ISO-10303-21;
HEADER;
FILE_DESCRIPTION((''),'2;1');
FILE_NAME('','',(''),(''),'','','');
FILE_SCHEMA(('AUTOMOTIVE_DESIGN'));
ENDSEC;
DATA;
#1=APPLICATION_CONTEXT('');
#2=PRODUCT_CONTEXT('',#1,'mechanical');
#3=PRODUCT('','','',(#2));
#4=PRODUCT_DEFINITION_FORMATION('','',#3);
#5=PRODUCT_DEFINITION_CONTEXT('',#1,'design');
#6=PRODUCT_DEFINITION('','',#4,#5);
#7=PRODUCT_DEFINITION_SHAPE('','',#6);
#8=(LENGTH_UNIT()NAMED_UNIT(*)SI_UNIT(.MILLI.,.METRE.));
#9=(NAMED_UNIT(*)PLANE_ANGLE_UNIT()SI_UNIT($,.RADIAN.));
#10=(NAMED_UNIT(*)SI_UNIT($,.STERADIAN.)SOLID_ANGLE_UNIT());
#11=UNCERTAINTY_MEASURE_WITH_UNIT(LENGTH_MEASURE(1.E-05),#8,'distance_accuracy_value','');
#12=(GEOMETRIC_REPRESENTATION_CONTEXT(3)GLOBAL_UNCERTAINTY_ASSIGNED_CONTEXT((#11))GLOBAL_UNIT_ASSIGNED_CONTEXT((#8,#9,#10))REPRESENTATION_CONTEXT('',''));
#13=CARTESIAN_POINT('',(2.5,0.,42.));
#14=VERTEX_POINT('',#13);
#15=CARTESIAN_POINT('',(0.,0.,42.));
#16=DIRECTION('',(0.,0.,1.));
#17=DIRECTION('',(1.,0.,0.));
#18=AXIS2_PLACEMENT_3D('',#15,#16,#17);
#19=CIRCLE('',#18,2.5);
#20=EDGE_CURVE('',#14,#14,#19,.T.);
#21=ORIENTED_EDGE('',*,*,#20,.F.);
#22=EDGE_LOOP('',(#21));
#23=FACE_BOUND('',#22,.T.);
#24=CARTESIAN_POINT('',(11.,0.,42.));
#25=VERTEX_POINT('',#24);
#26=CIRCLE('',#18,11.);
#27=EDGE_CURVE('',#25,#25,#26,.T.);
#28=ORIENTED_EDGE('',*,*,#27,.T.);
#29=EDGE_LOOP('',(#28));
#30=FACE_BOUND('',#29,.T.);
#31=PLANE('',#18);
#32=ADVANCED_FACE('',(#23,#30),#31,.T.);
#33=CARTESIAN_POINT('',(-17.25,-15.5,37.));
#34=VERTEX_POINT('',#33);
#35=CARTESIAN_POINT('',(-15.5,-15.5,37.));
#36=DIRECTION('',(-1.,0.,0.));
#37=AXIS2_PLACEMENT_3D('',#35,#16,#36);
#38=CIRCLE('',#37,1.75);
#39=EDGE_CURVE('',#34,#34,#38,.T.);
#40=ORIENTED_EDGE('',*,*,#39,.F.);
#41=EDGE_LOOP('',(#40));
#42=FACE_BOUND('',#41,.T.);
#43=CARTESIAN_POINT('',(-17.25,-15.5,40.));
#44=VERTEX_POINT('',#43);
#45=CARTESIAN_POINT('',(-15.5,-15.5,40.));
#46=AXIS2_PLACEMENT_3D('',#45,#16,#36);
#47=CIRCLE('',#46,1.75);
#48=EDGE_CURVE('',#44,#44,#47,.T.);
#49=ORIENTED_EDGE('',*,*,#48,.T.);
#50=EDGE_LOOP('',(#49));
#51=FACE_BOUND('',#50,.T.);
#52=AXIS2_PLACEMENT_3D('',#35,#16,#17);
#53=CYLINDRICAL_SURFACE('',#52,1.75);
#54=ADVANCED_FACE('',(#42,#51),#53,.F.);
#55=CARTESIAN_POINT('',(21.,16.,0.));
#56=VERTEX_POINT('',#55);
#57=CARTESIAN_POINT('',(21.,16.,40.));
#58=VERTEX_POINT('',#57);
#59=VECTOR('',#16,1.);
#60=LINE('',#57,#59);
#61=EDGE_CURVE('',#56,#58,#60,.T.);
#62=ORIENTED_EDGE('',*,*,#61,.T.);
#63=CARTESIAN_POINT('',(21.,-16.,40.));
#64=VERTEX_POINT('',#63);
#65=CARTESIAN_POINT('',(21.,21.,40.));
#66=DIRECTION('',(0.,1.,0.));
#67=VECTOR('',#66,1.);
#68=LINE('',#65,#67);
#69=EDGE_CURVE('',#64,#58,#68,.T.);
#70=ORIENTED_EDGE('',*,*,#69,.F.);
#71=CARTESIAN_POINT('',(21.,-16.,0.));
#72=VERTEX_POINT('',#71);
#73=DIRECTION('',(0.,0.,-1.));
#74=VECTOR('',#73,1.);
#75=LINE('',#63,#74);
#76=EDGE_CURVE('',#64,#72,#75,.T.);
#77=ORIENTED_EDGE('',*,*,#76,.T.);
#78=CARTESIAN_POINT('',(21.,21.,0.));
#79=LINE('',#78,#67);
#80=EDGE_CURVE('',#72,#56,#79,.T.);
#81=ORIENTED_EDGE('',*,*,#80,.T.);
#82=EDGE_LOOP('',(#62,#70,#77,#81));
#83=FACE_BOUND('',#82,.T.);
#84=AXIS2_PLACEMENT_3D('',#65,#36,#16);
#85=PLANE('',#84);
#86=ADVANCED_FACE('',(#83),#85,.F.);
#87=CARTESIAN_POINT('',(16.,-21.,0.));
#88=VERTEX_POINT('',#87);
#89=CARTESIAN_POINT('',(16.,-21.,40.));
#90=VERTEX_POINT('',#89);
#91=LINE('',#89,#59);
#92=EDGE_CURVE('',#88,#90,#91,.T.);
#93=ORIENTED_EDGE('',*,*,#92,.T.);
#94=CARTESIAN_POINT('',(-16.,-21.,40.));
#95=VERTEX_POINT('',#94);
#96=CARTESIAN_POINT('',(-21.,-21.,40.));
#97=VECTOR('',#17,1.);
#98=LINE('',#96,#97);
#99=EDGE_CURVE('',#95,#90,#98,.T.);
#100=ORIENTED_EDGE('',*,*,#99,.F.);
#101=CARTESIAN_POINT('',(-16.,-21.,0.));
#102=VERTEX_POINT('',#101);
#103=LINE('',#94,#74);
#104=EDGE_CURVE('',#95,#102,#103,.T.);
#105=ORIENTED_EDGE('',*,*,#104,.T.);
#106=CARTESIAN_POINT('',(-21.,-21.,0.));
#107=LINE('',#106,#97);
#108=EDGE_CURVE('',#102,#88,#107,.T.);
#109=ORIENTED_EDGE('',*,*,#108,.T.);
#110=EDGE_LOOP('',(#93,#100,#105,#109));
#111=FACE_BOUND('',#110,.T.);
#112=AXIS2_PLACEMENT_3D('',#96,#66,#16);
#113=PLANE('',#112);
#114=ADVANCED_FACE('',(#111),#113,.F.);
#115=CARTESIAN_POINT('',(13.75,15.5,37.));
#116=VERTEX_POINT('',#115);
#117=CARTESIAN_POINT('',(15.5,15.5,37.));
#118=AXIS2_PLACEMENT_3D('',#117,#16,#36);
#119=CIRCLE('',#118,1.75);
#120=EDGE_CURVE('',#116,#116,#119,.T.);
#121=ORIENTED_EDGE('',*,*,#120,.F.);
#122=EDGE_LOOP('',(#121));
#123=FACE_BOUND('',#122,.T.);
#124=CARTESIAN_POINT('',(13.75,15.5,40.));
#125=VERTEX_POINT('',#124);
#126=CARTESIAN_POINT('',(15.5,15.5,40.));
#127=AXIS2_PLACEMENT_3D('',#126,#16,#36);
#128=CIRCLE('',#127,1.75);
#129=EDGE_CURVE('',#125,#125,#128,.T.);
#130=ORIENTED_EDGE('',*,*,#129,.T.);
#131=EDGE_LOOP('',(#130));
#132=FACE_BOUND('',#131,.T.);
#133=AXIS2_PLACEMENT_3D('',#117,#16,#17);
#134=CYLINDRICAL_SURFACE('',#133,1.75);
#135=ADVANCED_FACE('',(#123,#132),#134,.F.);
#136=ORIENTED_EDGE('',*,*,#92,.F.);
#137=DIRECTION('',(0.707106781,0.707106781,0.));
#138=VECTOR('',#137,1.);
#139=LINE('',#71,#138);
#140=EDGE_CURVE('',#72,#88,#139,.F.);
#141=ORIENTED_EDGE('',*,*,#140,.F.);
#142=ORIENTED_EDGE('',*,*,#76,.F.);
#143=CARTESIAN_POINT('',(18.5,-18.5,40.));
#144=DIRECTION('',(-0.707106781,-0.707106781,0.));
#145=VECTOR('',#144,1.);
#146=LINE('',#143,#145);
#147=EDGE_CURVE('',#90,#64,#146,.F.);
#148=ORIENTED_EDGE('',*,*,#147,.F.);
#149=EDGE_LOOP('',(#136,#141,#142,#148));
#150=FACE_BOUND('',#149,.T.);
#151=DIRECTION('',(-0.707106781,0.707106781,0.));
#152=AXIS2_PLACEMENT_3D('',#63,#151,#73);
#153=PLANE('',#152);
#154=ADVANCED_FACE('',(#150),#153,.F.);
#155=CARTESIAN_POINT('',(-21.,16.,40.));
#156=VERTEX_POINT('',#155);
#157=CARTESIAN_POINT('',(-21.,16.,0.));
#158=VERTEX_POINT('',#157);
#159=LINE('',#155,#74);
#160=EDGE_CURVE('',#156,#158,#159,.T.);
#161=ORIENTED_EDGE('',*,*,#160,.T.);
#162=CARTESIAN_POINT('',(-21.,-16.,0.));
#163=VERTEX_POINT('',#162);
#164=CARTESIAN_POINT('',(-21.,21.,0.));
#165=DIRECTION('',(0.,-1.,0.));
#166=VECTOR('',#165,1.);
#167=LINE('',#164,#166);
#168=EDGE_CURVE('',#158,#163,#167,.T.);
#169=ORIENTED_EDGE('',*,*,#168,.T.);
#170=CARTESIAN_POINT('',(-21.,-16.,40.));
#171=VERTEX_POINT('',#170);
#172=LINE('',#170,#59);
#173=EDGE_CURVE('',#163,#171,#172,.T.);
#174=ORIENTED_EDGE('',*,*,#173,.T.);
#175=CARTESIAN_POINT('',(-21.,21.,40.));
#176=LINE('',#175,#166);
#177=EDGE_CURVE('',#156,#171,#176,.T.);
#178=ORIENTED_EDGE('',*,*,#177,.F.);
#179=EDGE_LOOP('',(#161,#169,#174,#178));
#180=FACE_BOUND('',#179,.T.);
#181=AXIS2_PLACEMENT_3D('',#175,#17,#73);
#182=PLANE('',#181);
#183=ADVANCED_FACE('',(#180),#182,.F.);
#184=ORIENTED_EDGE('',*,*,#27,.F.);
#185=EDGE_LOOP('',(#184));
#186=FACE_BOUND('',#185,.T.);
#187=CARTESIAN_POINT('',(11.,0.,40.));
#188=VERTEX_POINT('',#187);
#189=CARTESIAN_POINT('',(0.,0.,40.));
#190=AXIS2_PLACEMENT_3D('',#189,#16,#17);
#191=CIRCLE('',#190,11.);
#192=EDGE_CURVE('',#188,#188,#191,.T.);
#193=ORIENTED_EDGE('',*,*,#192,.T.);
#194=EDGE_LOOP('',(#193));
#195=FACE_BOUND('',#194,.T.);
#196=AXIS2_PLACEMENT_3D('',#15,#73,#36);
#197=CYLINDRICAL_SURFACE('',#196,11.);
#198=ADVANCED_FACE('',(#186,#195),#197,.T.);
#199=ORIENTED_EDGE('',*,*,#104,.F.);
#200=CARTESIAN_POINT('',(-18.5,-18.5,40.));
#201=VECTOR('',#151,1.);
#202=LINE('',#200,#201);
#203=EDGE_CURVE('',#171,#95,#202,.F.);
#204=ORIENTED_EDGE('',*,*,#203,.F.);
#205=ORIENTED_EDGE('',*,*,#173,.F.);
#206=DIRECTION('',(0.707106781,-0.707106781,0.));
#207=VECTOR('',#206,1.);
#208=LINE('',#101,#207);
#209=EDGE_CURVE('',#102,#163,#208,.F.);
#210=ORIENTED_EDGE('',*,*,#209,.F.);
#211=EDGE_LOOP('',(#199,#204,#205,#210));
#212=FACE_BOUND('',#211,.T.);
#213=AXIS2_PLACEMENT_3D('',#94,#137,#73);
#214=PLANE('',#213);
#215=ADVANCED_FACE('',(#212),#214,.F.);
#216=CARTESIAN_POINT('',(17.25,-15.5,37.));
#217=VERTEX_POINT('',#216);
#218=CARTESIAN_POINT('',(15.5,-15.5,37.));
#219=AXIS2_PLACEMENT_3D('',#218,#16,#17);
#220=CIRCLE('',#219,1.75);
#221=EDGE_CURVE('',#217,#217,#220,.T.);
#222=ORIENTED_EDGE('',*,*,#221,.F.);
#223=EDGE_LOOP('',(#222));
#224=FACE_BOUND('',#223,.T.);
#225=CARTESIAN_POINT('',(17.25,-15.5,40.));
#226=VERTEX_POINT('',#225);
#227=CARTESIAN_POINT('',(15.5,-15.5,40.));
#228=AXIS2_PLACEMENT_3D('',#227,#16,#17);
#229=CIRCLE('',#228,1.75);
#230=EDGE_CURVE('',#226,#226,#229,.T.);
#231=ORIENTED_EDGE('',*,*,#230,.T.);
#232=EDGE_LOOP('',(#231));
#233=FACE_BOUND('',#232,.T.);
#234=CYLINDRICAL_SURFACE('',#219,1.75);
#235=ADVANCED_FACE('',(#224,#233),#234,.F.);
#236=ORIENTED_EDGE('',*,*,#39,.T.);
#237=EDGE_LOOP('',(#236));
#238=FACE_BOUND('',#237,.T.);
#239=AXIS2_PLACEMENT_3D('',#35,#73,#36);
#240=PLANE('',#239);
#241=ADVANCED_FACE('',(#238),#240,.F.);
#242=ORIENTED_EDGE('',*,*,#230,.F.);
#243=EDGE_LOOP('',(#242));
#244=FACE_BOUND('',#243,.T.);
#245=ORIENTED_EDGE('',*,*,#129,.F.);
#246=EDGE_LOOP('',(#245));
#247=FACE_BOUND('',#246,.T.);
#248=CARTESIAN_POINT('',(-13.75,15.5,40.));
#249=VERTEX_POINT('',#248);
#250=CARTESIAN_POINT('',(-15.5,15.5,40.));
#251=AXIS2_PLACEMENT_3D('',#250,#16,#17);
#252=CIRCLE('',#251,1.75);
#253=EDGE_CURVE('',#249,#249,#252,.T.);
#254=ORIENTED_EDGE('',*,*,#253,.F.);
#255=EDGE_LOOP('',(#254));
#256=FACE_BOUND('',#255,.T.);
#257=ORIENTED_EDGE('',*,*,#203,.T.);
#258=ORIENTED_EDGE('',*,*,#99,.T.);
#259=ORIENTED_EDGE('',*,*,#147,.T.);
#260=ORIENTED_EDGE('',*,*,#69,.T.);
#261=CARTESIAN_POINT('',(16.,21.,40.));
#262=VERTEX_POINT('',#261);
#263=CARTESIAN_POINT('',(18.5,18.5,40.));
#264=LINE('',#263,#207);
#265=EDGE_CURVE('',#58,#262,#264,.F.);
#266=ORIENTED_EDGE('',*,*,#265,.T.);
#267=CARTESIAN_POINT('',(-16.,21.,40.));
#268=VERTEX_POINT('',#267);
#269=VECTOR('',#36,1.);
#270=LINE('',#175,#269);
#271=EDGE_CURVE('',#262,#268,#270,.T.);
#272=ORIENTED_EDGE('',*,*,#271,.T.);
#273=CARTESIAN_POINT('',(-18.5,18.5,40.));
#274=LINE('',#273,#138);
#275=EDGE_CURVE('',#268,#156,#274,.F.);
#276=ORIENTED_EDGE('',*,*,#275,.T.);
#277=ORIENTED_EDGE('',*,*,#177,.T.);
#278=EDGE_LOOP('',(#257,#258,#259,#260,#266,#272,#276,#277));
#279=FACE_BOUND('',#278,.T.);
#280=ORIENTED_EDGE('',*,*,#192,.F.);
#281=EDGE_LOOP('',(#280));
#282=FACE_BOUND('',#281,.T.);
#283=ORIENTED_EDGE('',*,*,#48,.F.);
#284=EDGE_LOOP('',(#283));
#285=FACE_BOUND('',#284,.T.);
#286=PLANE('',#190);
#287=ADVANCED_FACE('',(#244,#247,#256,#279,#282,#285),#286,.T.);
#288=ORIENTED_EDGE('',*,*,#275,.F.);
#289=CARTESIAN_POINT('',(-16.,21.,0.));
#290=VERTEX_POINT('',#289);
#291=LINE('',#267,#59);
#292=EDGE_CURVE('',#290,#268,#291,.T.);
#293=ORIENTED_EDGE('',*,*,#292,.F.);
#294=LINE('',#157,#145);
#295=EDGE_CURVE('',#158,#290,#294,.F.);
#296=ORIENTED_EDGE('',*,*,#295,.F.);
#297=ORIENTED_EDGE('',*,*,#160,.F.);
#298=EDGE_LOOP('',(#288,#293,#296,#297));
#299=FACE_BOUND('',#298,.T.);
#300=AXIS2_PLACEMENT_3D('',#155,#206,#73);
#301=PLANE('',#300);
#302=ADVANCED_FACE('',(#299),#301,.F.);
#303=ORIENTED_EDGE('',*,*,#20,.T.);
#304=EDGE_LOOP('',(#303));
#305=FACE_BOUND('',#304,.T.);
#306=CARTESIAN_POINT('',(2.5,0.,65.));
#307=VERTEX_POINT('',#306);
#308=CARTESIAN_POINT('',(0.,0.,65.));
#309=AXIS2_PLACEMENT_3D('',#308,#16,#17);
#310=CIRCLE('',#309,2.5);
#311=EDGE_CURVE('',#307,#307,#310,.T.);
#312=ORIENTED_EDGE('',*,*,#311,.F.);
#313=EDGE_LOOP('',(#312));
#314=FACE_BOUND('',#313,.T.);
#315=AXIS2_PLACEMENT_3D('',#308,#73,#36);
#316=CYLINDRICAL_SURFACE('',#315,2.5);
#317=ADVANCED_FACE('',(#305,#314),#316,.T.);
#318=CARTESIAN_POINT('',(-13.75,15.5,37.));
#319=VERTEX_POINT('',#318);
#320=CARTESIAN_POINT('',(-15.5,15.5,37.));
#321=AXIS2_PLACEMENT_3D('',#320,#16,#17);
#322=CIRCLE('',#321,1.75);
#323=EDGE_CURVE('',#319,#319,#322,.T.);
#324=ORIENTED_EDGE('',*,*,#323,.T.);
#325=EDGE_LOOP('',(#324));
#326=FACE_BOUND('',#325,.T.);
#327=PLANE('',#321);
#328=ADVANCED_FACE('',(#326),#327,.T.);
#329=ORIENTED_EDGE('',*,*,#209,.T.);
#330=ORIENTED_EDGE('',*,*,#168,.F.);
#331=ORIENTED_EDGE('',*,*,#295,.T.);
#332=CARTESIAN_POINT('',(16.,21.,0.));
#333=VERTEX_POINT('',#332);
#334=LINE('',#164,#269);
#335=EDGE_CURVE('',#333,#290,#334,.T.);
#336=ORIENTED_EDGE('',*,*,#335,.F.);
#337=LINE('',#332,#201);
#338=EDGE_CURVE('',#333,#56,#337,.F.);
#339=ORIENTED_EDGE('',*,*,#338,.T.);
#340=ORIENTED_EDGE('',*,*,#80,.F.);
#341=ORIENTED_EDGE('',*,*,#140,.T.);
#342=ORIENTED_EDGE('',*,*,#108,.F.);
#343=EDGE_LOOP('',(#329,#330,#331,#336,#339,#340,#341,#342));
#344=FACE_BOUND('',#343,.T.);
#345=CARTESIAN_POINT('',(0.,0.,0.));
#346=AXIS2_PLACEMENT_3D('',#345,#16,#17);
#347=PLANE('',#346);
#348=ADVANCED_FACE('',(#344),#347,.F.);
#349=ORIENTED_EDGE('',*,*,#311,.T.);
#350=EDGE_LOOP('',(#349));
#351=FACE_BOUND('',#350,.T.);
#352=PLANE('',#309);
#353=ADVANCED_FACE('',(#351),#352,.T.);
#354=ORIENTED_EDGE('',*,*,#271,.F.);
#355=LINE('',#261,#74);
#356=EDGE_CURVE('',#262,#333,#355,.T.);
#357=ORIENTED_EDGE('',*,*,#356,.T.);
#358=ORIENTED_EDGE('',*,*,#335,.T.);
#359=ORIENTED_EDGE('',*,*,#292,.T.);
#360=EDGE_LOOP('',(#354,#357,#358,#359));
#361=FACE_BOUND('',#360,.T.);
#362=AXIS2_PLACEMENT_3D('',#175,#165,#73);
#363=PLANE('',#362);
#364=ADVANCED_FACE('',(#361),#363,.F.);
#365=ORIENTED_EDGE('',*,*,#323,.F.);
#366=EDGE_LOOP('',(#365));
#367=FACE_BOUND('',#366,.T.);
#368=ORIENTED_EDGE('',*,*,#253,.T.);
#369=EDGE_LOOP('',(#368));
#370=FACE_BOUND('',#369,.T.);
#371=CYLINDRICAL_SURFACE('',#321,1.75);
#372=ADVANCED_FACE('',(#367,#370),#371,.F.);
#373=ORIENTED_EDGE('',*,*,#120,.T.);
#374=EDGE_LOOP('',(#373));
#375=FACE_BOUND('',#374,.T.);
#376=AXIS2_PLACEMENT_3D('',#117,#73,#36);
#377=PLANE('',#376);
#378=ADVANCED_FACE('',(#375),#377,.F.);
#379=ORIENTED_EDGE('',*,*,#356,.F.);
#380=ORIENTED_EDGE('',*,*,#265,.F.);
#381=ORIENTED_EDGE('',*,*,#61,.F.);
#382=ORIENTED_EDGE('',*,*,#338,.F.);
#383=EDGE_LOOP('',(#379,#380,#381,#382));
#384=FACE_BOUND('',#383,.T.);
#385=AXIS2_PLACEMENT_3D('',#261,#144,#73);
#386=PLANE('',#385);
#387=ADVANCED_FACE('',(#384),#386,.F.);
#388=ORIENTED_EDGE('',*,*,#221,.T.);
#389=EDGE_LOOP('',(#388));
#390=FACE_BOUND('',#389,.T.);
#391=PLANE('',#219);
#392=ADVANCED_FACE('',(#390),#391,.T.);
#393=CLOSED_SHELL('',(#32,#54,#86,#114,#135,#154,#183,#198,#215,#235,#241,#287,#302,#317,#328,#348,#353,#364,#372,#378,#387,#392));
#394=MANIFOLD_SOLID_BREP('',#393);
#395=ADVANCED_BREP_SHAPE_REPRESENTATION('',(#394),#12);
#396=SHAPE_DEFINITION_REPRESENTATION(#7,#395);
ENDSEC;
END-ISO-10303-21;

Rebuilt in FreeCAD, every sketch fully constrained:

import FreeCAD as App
import Part
import Sketcher
from FreeCAD import Vector


def edges_at(feature, points):
    """Names of the edges that pass closest to the given points."""
    edges = feature.Shape.Edges
    near = lambda p: min(range(len(edges)), key=lambda i: edges[i].distToShape(Part.Vertex(*p))[0])
    return sorted({f"Edge{near(p) + 1}" for p in points})


def add_polygon(sketch, points):
    """Adds a closed chain of lines whose ends are joined by coincident constraints."""
    first, n = sketch.GeometryCount, len(points)
    for a, b in zip(points, points[1:] + points[:1]):
        sketch.addGeometry(Part.LineSegment(App.Vector(*a, 0), App.Vector(*b, 0)), False)
    for i in range(n):
        sketch.addConstraint(Sketcher.Constraint("Coincident", first + i, 2, first + (i + 1) % n, 1))

doc = App.newDocument("Part")
params = doc.addObject("Spreadsheet::Sheet", "Params")
for row, (alias, value) in enumerate([
    ("sketch1_width", "42 mm"),
    ("pad1_length", "40 mm"),
    ("chamfer_size", "5 mm"),
    ("sketch2_diameter", "22 mm"),
    ("pad2_length", "2 mm"),
    ("sketch3_diameter", "5 mm"),
    ("pad3_length", "23 mm"),
    ("sketch4_diameter", "3.5 mm"),
    ("pocket1_length", "3 mm"),
], start=1):
    params.set(f"A{row}", alias)
    params.set(f"B{row}", "=" + value)
    params.setAlias(f"B{row}", alias)

body = doc.addObject("PartDesign::Body", "Body")

# Sketch on XY plane
sketch1 = doc.addObject("Sketcher::SketchObject", "Sketch")
body.addObject(sketch1)
sketch1.AttachmentSupport = (doc.XY_Plane, [""])
sketch1.MapMode = "FlatFace"
add_polygon(sketch1, [(-21, 21), (-21, -21), (21, -21), (21, 21)])  # lines 0-3
sketch1.addConstraint(Sketcher.Constraint("Vertical", 0))
sketch1.addConstraint(Sketcher.Constraint("Horizontal", 1))
sketch1.addConstraint(Sketcher.Constraint("Vertical", 2))
sketch1.addConstraint(Sketcher.Constraint("Horizontal", 3))
sketch1.addConstraint(Sketcher.Constraint("Symmetric", 0, 2, 2, 2, -1, 1))
sketch1.addConstraint(Sketcher.Constraint("Equal", 3, 0))
sketch1.addConstraint(Sketcher.Constraint("DistanceX", 1, 1, 1, 2, 42.0))
sketch1.setExpression("Constraints[10]", "Params.sketch1_width")
pad1 = doc.addObject("PartDesign::Pad", "Pad")
body.addObject(pad1)
pad1.Profile = sketch1
pad1.setExpression("Length", "Params.pad1_length")
doc.recompute()

chamfer = doc.addObject("PartDesign::Chamfer", "Chamfer")
body.addObject(chamfer)
chamfer.Base = (pad1, edges_at(pad1, [
    (-21, 21, 20),
    (21, 21, 20),
    (21, -21, 20),
    (-21, -21, 20),
]))
chamfer.setExpression("Size", "Params.chamfer_size")

# Sketch on XY plane
sketch2 = doc.addObject("Sketcher::SketchObject", "Sketch001")
body.addObject(sketch2)
sketch2.AttachmentSupport = (doc.XY_Plane, [""])
sketch2.MapMode = "FlatFace"
sketch2.AttachmentOffset = App.Placement(Vector(0, 0, 40), App.Rotation())
sketch2.addGeometry(Part.Circle(Vector(0, 0, 0), Vector(0, 0, 1), 11), False)
sketch2.addConstraint(Sketcher.Constraint("Coincident", 0, 3, -1, 1))
sketch2.addConstraint(Sketcher.Constraint("Diameter", 0, 22.0))
sketch2.setExpression("Constraints[1]", "Params.sketch2_diameter")
pad2 = doc.addObject("PartDesign::Pad", "Pad001")
body.addObject(pad2)
pad2.Profile = sketch2
pad2.setExpression("Length", "Params.pad2_length")

# Sketch on XY plane
sketch3 = doc.addObject("Sketcher::SketchObject", "Sketch002")
body.addObject(sketch3)
sketch3.AttachmentSupport = (doc.XY_Plane, [""])
sketch3.MapMode = "FlatFace"
sketch3.AttachmentOffset = App.Placement(Vector(0, 0, 42), App.Rotation())
sketch3.addGeometry(Part.Circle(Vector(0, 0, 0), Vector(0, 0, 1), 2.5), False)
sketch3.addConstraint(Sketcher.Constraint("Coincident", 0, 3, -1, 1))
sketch3.addConstraint(Sketcher.Constraint("Diameter", 0, 5.0))
sketch3.setExpression("Constraints[1]", "Params.sketch3_diameter")
pad3 = doc.addObject("PartDesign::Pad", "Pad002")
body.addObject(pad3)
pad3.Profile = sketch3
pad3.setExpression("Length", "Params.pad3_length")

# Sketch on XY plane
sketch4 = doc.addObject("Sketcher::SketchObject", "Sketch003")
body.addObject(sketch4)
sketch4.AttachmentSupport = (doc.XY_Plane, [""])
sketch4.MapMode = "FlatFace"
sketch4.AttachmentOffset = App.Placement(Vector(0, 0, 40), App.Rotation())
sketch4.addGeometry(Part.Circle(Vector(-15.5, 15.5, 0), Vector(0, 0, 1), 1.75), False)
sketch4.addGeometry(Part.Circle(Vector(-15.5, -15.5, 0), Vector(0, 0, 1), 1.75), False)
sketch4.addGeometry(Part.Circle(Vector(15.5, -15.5, 0), Vector(0, 0, 1), 1.75), False)
sketch4.addGeometry(Part.Circle(Vector(15.5, 15.5, 0), Vector(0, 0, 1), 1.75), False)
sketch4.addConstraint(Sketcher.Constraint("Equal", 0, 1))
sketch4.addConstraint(Sketcher.Constraint("Equal", 1, 2))
sketch4.addConstraint(Sketcher.Constraint("Equal", 2, 3))
sketch4.addConstraint(Sketcher.Constraint("Symmetric", 0, 3, 2, 3, -1, 1))
sketch4.addConstraint(Sketcher.Constraint("Symmetric", 1, 3, 3, 3, -1, 1))
sketch4.addConstraint(Sketcher.Constraint("Symmetric", 1, 3, 2, 3, -2))
sketch4.addConstraint(Sketcher.Constraint("Diameter", 0, 3.5))
sketch4.addConstraint(Sketcher.Constraint("DistanceY", 1, 3, 0, 3, 31.0))
sketch4.addConstraint(Sketcher.Constraint("DistanceX", 1, 3, 2, 3, 31.0))
sketch4.setExpression("Constraints[6]", "Params.sketch4_diameter")
pocket1 = doc.addObject("PartDesign::Pocket", "Pocket")
body.addObject(pocket1)
pocket1.Profile = sketch4
pocket1.setExpression("Length", "Params.pocket1_length")

doc.recompute()
